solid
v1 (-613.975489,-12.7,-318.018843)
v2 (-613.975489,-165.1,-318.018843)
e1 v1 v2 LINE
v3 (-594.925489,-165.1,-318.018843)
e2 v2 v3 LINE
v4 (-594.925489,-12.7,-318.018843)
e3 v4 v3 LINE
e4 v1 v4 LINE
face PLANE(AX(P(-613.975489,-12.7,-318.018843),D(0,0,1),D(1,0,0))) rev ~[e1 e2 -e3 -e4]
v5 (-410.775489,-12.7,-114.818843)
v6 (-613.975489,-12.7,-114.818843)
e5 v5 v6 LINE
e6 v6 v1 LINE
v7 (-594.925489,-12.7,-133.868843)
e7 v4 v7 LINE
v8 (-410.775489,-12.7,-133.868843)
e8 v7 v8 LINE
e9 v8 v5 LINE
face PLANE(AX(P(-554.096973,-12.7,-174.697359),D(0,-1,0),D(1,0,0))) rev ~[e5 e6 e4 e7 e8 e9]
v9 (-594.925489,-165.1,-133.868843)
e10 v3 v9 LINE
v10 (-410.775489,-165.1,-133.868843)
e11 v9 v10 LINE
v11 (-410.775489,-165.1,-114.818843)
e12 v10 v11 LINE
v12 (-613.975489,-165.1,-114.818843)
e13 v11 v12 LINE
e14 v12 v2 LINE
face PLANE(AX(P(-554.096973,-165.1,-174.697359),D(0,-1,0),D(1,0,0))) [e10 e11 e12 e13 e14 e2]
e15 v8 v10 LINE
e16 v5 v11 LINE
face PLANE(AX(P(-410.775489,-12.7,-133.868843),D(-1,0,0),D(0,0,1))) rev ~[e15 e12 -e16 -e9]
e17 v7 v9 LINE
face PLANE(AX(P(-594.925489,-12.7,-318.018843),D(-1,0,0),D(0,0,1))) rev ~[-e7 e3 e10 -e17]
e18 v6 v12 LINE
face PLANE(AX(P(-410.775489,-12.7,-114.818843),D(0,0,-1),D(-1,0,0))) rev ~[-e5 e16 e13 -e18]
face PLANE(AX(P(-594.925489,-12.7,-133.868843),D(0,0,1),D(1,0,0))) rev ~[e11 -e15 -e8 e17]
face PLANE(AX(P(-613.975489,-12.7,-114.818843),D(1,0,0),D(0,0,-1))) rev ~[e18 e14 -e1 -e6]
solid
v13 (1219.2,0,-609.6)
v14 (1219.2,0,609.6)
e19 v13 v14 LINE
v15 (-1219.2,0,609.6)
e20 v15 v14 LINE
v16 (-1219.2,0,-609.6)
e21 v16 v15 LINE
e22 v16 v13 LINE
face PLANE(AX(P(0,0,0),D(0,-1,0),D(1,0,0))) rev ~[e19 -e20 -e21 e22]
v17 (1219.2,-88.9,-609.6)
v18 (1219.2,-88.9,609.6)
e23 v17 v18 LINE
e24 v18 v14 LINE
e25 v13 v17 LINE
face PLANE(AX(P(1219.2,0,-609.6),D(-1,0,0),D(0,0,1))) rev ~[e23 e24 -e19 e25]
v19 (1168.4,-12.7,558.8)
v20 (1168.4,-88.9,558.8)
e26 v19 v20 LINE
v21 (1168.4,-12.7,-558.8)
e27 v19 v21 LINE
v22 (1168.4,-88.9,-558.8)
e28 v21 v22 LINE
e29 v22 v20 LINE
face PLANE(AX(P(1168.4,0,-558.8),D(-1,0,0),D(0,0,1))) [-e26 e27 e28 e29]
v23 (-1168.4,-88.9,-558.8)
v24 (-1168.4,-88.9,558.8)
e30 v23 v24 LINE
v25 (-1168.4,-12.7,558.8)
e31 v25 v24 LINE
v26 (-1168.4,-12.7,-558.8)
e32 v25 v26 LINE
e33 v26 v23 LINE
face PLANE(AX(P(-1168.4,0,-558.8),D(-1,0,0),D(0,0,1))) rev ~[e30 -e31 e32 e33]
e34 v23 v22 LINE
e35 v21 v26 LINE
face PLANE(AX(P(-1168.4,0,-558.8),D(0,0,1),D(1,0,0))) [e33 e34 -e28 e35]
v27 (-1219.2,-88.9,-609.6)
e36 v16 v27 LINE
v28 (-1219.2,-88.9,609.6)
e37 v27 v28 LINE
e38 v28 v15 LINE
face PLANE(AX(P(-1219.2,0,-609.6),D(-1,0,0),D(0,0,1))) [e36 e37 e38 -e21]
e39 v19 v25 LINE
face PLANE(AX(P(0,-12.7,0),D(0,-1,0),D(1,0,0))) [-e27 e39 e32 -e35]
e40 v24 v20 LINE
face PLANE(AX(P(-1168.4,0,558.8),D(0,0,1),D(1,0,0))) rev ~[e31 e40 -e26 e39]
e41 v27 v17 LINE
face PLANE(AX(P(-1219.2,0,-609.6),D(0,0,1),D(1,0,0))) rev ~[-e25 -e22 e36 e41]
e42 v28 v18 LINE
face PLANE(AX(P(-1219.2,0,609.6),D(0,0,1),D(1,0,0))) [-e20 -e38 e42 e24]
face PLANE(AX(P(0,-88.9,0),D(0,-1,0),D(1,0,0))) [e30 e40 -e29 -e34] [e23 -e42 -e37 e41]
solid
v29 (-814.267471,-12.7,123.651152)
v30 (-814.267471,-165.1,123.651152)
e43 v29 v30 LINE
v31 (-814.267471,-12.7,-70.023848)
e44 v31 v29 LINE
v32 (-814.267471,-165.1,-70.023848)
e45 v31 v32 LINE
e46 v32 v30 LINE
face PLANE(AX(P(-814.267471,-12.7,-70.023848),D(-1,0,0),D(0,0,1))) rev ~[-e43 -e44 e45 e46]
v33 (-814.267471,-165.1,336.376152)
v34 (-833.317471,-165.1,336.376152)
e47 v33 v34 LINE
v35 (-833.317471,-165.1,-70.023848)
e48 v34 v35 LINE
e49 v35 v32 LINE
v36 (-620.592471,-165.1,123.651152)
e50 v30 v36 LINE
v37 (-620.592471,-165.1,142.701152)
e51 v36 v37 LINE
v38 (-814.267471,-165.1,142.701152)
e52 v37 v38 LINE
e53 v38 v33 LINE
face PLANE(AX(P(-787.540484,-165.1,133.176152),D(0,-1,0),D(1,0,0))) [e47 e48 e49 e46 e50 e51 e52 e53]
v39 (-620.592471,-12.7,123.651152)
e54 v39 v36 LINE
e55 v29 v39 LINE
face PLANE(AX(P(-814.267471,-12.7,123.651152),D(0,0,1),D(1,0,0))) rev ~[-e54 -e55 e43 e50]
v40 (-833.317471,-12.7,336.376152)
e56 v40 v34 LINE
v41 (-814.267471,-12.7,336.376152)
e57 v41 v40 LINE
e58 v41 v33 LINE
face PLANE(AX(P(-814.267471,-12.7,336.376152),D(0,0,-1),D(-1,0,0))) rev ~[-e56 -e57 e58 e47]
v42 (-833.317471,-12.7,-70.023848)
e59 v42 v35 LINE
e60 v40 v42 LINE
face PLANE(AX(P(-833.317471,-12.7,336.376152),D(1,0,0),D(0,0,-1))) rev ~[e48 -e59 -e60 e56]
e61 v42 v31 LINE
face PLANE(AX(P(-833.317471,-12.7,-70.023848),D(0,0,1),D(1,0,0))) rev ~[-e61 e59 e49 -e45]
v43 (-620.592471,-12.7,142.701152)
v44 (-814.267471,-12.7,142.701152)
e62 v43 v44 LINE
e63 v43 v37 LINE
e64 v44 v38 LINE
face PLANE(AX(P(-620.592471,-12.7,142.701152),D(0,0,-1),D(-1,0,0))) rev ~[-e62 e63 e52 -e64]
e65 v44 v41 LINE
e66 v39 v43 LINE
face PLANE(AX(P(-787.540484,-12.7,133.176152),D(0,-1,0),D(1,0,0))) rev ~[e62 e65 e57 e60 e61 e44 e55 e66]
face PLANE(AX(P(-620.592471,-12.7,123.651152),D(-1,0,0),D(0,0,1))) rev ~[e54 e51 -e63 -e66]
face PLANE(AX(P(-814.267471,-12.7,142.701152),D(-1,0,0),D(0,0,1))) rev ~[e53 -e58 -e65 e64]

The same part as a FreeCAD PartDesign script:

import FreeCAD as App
import Part
import Sketcher

V = App.Vector
Q = App.Units.Quantity

doc = App.newDocument("Part")
params = doc.addObject("Spreadsheet::Sheet", "Params")
for row, (alias, value) in enumerate([
    ("sketch1_width", "96 in"),
    ("sketch1_height", "48 in"),
    ("pad1_length", "0.5 in"),
    ("sketch2_width", "96 in"),
    ("sketch2_width2", "92 in"),
    ("sketch2_height", "48 in"),
    ("sketch2_height2", "44 in"),
    ("pad2_length", "3.5 in"),
    ("sketch3_height", "16 in"),
    ("sketch3_width", "0.75 in"),
    ("pad3_length", "6 in"),
    ("sketch4_width", "8 in"),
    ("sketch4_width2", "7.25 in"),
    ("pad4_length", "6 in"),
], start=1):
    params.set(f"A{row}", alias)
    params.set(f"B{row}", "=" + value)
    params.setAlias(f"B{row}", alias)

body = doc.addObject("PartDesign::Body", "Body")

sketch1 = doc.addObject("Sketcher::SketchObject", "Sketch")
body.addObject(sketch1)
sketch1.AttachmentSupport = (doc.XZ_Plane, [""])
sketch1.MapMode = "FlatFace"
sketch1.addGeometry(Part.LineSegment(V(-1219, 610, 0), V(-1219, -610, 0)), False)
sketch1.addGeometry(Part.LineSegment(V(-1219, -610, 0), V(1219, -610, 0)), False)
sketch1.addGeometry(Part.LineSegment(V(1219, -610, 0), V(1219, 610, 0)), False)
sketch1.addGeometry(Part.LineSegment(V(1219, 610, 0), V(-1219, 610, 0)), False)
sketch1.addConstraint(Sketcher.Constraint("Coincident", 0, 2, 1, 1))
sketch1.addConstraint(Sketcher.Constraint("Coincident", 1, 2, 2, 1))
sketch1.addConstraint(Sketcher.Constraint("Coincident", 2, 2, 3, 1))
sketch1.addConstraint(Sketcher.Constraint("Coincident", 3, 2, 0, 1))
sketch1.addConstraint(Sketcher.Constraint("Vertical", 0))
sketch1.addConstraint(Sketcher.Constraint("Horizontal", 1))
sketch1.addConstraint(Sketcher.Constraint("Vertical", 2))
sketch1.addConstraint(Sketcher.Constraint("Horizontal", 3))
sketch1.addConstraint(Sketcher.Constraint("Symmetric", 0, 2, 2, 2, -1, 1))
sketch1.addConstraint(Sketcher.Constraint("DistanceX", 1, 1, 1, 2, Q("96 in")))
sketch1.addConstraint(Sketcher.Constraint("DistanceY", 0, 2, 0, 1, Q("48 in")))
sketch1.setExpression("Constraints[9]", "Params.sketch1_width")
sketch1.setExpression("Constraints[10]", "Params.sketch1_height")
pad1 = doc.addObject("PartDesign::Pad", "Pad")
body.addObject(pad1)
pad1.Profile = sketch1
pad1.setExpression("Length", "Params.pad1_length")

sketch2 = doc.addObject("Sketcher::SketchObject", "Sketch001")
body.addObject(sketch2)
sketch2.AttachmentSupport = (doc.XZ_Plane, [""])
sketch2.MapMode = "FlatFace"
sketch2.addGeometry(Part.LineSegment(V(-1219, 610, 0), V(-1219, -610, 0)), False)
sketch2.addGeometry(Part.LineSegment(V(-1219, -610, 0), V(1219, -610, 0)), False)
sketch2.addGeometry(Part.LineSegment(V(1219, -610, 0), V(1219, 610, 0)), False)
sketch2.addGeometry(Part.LineSegment(V(1219, 610, 0), V(-1219, 610, 0)), False)
sketch2.addGeometry(Part.LineSegment(V(1168, -559, 0), V(-1168, -559, 0)), False)
sketch2.addGeometry(Part.LineSegment(V(-1168, -559, 0), V(-1168, 559, 0)), False)
sketch2.addGeometry(Part.LineSegment(V(-1168, 559, 0), V(1168, 559, 0)), False)
sketch2.addGeometry(Part.LineSegment(V(1168, 559, 0), V(1168, -559, 0)), False)
sketch2.addConstraint(Sketcher.Constraint("Coincident", 0, 2, 1, 1))
sketch2.addConstraint(Sketcher.Constraint("Coincident", 1, 2, 2, 1))
sketch2.addConstraint(Sketcher.Constraint("Coincident", 2, 2, 3, 1))
sketch2.addConstraint(Sketcher.Constraint("Coincident", 3, 2, 0, 1))
sketch2.addConstraint(Sketcher.Constraint("Coincident", 4, 2, 5, 1))
sketch2.addConstraint(Sketcher.Constraint("Coincident", 5, 2, 6, 1))
sketch2.addConstraint(Sketcher.Constraint("Coincident", 6, 2, 7, 1))
sketch2.addConstraint(Sketcher.Constraint("Coincident", 7, 2, 4, 1))
sketch2.addConstraint(Sketcher.Constraint("Vertical", 0))
sketch2.addConstraint(Sketcher.Constraint("Horizontal", 1))
sketch2.addConstraint(Sketcher.Constraint("Vertical", 2))
sketch2.addConstraint(Sketcher.Constraint("Horizontal", 3))
sketch2.addConstraint(Sketcher.Constraint("Horizontal", 4))
sketch2.addConstraint(Sketcher.Constraint("Vertical", 5))
sketch2.addConstraint(Sketcher.Constraint("Horizontal", 6))
sketch2.addConstraint(Sketcher.Constraint("Vertical", 7))
sketch2.addConstraint(Sketcher.Constraint("Symmetric", 0, 2, 2, 2, -1, 1))
sketch2.addConstraint(Sketcher.Constraint("Symmetric", 4, 2, 6, 2, -1, 1))
sketch2.addConstraint(Sketcher.Constraint("DistanceX", 1, 1, 1, 2, Q("96 in")))
sketch2.addConstraint(Sketcher.Constraint("DistanceX", 4, 2, 4, 1, Q("92 in")))
sketch2.addConstraint(Sketcher.Constraint("DistanceY", 0, 2, 0, 1, Q("48 in")))
sketch2.addConstraint(Sketcher.Constraint("DistanceY", 5, 1, 5, 2, Q("44 in")))
sketch2.setExpression("Constraints[18]", "Params.sketch2_width")
sketch2.setExpression("Constraints[19]", "Params.sketch2_width2")
sketch2.setExpression("Constraints[20]", "Params.sketch2_height")
sketch2.setExpression("Constraints[21]", "Params.sketch2_height2")
pad2 = doc.addObject("PartDesign::Pad", "Pad001")
body.addObject(pad2)
pad2.Profile = sketch2
pad2.setExpression("Length", "Params.pad2_length")
body2 = doc.addObject("PartDesign::Body", "Body001")

sketch3 = doc.addObject("Sketcher::SketchObject", "Sketch002")
body2.addObject(sketch3)
sketch3.AttachmentSupport = (doc.getObject("XZ_Plane001"), [""])
sketch3.MapMode = "FlatFace"
sketch3.AttachmentOffset = App.Placement(V(0, 0, 0.5 * 25.4), App.Rotation())
sketch3.addGeometry(Part.LineSegment(V(-814, 336, 0), V(-833, 336, 0)), False)
sketch3.addGeometry(Part.LineSegment(V(-833, 336, 0), V(-833, -70, 0)), False)
sketch3.addGeometry(Part.LineSegment(V(-833, -70, 0), V(-814, -70, 0)), False)
sketch3.addGeometry(Part.LineSegment(V(-814, -70, 0), V(-814, 124, 0)), False)
sketch3.addGeometry(Part.LineSegment(V(-814, 124, 0), V(-621, 124, 0)), False)
sketch3.addGeometry(Part.LineSegment(V(-621, 124, 0), V(-621, 143, 0)), False)
sketch3.addGeometry(Part.LineSegment(V(-621, 143, 0), V(-814, 143, 0)), False)
sketch3.addGeometry(Part.LineSegment(V(-814, 143, 0), V(-814, 336, 0)), False)
sketch3.addConstraint(Sketcher.Constraint("Coincident", 0, 2, 1, 1))
sketch3.addConstraint(Sketcher.Constraint("Coincident", 1, 2, 2, 1))
sketch3.addConstraint(Sketcher.Constraint("Coincident", 2, 2, 3, 1))
sketch3.addConstraint(Sketcher.Constraint("Coincident", 3, 2, 4, 1))
sketch3.addConstraint(Sketcher.Constraint("Coincident", 4, 2, 5, 1))
sketch3.addConstraint(Sketcher.Constraint("Coincident", 5, 2, 6, 1))
sketch3.addConstraint(Sketcher.Constraint("Coincident", 6, 2, 7, 1))
sketch3.addConstraint(Sketcher.Constraint("Coincident", 7, 2, 0, 1))
sketch3.addConstraint(Sketcher.Constraint("Horizontal", 0))
sketch3.addConstraint(Sketcher.Constraint("Vertical", 1))
sketch3.addConstraint(Sketcher.Constraint("Horizontal", 2))
sketch3.addConstraint(Sketcher.Constraint("Vertical", 3))
sketch3.addConstraint(Sketcher.Constraint("Horizontal", 4))
sketch3.addConstraint(Sketcher.Constraint("Vertical", 5))
sketch3.addConstraint(Sketcher.Constraint("Horizontal", 6))
sketch3.addConstraint(Sketcher.Constraint("Vertical", 7))
sketch3.addConstraint(Sketcher.Constraint("Vertical", 3, 2, 6, 2))
sketch3.addConstraint(Sketcher.Constraint("Equal", 6, 3))
sketch3.addConstraint(Sketcher.Constraint("Equal", 2, 5))
sketch3.addConstraint(Sketcher.Constraint("Equal", 3, 7))
sketch3.addConstraint(Sketcher.Constraint("DistanceY", 1, 2, 1, 1, Q("16 in")))
sketch3.addConstraint(Sketcher.Constraint("DistanceX", 0, 2, 0, 1, Q("0.75 in")))
sketch3.addConstraint(Sketcher.Constraint("DistanceX", 0, 2, -1, 1, Q("833.317471 mm")))
sketch3.addConstraint(Sketcher.Constraint("DistanceY", -1, 1, 0, 2, Q("336.376152 mm")))
sketch3.setExpression("Constraints[20]", "Params.sketch3_height")
sketch3.setExpression("Constraints[21]", "Params.sketch3_width")
pad3 = doc.addObject("PartDesign::Pad", "Pad002")
body2.addObject(pad3)
pad3.Profile = sketch3
pad3.setExpression("Length", "Params.pad3_length")
body3 = doc.addObject("PartDesign::Body", "Body002")

sketch4 = doc.addObject("Sketcher::SketchObject", "Sketch003")
body3.addObject(sketch4)
sketch4.AttachmentSupport = (doc.getObject("XZ_Plane002"), [""])
sketch4.MapMode = "FlatFace"
sketch4.AttachmentOffset = App.Placement(V(0, 0, 0.5 * 25.4), App.Rotation())
sketch4.addGeometry(Part.LineSegment(V(-595, -318, 0), V(-595, -134, 0)), False)
sketch4.addGeometry(Part.LineSegment(V(-595, -134, 0), V(-411, -134, 0)), False)
sketch4.addGeometry(Part.LineSegment(V(-411, -134, 0), V(-411, -115, 0)), False)
sketch4.addGeometry(Part.LineSegment(V(-411, -115, 0), V(-614, -115, 0)), False)
sketch4.addGeometry(Part.LineSegment(V(-614, -115, 0), V(-614, -318, 0)), False)
sketch4.addGeometry(Part.LineSegment(V(-614, -318, 0), V(-595, -318, 0)), False)
sketch4.addConstraint(Sketcher.Constraint("Coincident", 0, 2, 1, 1))
sketch4.addConstraint(Sketcher.Constraint("Coincident", 1, 2, 2, 1))
sketch4.addConstraint(Sketcher.Constraint("Coincident", 2, 2, 3, 1))
sketch4.addConstraint(Sketcher.Constraint("Coincident", 3, 2, 4, 1))
sketch4.addConstraint(Sketcher.Constraint("Coincident", 4, 2, 5, 1))
sketch4.addConstraint(Sketcher.Constraint("Coincident", 5, 2, 0, 1))
sketch4.addConstraint(Sketcher.Constraint("Vertical", 0))
sketch4.addConstraint(Sketcher.Constraint("Horizontal", 1))
sketch4.addConstraint(Sketcher.Constraint("Vertical", 2))
sketch4.addConstraint(Sketcher.Constraint("Horizontal", 3))
sketch4.addConstraint(Sketcher.Constraint("Vertical", 4))
sketch4.addConstraint(Sketcher.Constraint("Horizontal", 5))
sketch4.addConstraint(Sketcher.Constraint("Equal", 1, 0))
sketch4.addConstraint(Sketcher.Constraint("Equal", 5, 2))
sketch4.addConstraint(Sketcher.Constraint("DistanceX", 3, 2, 3, 1, Q("8 in")))
sketch4.addConstraint(Sketcher.Constraint("DistanceX", 1, 1, 1, 2, Q("7.25 in")))
sketch4.addConstraint(Sketcher.Constraint("DistanceX", 0, 2, -1, 1, Q("594.925489 mm")))
sketch4.addConstraint(Sketcher.Constraint("DistanceY", 0, 2, -1, 1, Q("133.868843 mm")))
sketch4.setExpression("Constraints[14]", "Params.sketch4_width")
sketch4.setExpression("Constraints[15]", "Params.sketch4_width2")
pad4 = doc.addObject("PartDesign::Pad", "Pad003")
body3.addObject(pad4)
pad4.Profile = sketch4
pad4.setExpression("Length", "Params.pad4_length")

doc.recompute()
